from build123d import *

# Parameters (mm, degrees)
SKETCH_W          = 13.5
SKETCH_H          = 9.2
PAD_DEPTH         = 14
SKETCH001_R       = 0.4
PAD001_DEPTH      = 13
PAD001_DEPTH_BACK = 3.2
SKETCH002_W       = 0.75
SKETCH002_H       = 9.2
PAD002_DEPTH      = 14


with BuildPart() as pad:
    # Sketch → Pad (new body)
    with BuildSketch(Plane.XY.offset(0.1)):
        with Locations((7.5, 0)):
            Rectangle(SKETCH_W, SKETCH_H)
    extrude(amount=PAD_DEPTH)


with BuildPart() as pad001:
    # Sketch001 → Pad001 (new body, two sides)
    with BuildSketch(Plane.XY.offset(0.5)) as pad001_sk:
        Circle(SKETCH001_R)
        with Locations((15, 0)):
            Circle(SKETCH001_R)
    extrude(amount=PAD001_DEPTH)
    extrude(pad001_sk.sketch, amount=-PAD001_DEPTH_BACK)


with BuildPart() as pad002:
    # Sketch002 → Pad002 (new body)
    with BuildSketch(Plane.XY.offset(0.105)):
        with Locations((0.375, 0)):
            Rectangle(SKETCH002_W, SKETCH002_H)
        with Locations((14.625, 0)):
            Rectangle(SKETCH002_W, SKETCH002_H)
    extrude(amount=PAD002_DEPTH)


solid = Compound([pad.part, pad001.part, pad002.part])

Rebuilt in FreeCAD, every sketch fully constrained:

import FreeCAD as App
import Part
import Sketcher
from FreeCAD import Vector
Q = App.Units.Quantity

doc = App.newDocument("Part")
body = doc.addObject("PartDesign::Body", "Body")

# Sketch on XY plane
sketch1 = doc.addObject("Sketcher::SketchObject", "Sketch")
body.addObject(sketch1)
sketch1.AttachmentSupport = (doc.XY_Plane, [""])
sketch1.MapMode = "FlatFace"
sketch1.AttachmentOffset = App.Placement(Vector(0, 0, 0.1), App.Rotation())
sketch1.addGeometry([
    Part.LineSegment(Vector(1, 5, 0), Vector(1, -5, 0)),
    Part.LineSegment(Vector(1, -5, 0), Vector(14, -5, 0)),
    Part.LineSegment(Vector(14, -5, 0), Vector(14, 5, 0)),
    Part.LineSegment(Vector(14, 5, 0), Vector(1, 5, 0)),
], False)
sketch1.addConstraint([
    Sketcher.Constraint("Coincident", 0, 2, 1, 1),
    Sketcher.Constraint("Coincident", 1, 2, 2, 1),
    Sketcher.Constraint("Coincident", 2, 2, 3, 1),
    Sketcher.Constraint("Coincident", 3, 2, 0, 1),
    Sketcher.Constraint("Vertical", 0),
    Sketcher.Constraint("Horizontal", 1),
    Sketcher.Constraint("Vertical", 2),
    Sketcher.Constraint("Horizontal", 3),
    Sketcher.Constraint("DistanceX", 1, 1, 1, 2, Q("13.5 mm")),
    Sketcher.Constraint("DistanceY", 0, 2, 0, 1, Q("9.2 mm")),
    Sketcher.Constraint("DistanceY", 0, 2, -1, 1, Q("4.6 mm")),
    Sketcher.Constraint("DistanceX", -1, 1, 0, 2, Q("0.75 mm")),
])
pad1 = doc.addObject("PartDesign::Pad", "Pad")
body.addObject(pad1)
pad1.Profile = sketch1
pad1.Length = 14
body2 = doc.addObject("PartDesign::Body", "Body001")
body2.AllowCompound = True

# Sketch on XY plane
sketch2 = doc.addObject("Sketcher::SketchObject", "Sketch001")
body2.addObject(sketch2)
sketch2.AttachmentSupport = (doc.getObject("XY_Plane001"), [""])
sketch2.MapMode = "FlatFace"
sketch2.AttachmentOffset = App.Placement(Vector(0, 0, 0.5), App.Rotation())
sketch2.addGeometry([
    Part.Circle(Vector(0, 0, 0), Vector(0, 0, 1), 0.4),
    Part.Circle(Vector(15, 0, 0), Vector(0, 0, 1), 0.4),
], False)
sketch2.addConstraint([
    Sketcher.Constraint("Coincident", 0, 3, -1, 1),
    Sketcher.Constraint("Equal", 0, 1),
    Sketcher.Constraint("PointOnObject", 1, 3, -1),
    Sketcher.Constraint("Diameter", 0, Q("0.8 mm")),
    Sketcher.Constraint("DistanceX", -1, 1, 1, 3, Q("15 mm")),
])
pad2 = doc.addObject("PartDesign::Pad", "Pad001")
body2.addObject(pad2)
pad2.Profile = sketch2
pad2.Type = "TwoLengths"
pad2.Length = 13
pad2.Length2 = 3.2
body3 = doc.addObject("PartDesign::Body", "Body002")
body3.AllowCompound = True

# Sketch on XY plane
sketch3 = doc.addObject("Sketcher::SketchObject", "Sketch002")
body3.addObject(sketch3)
sketch3.AttachmentSupport = (doc.getObject("XY_Plane002"), [""])
sketch3.MapMode = "FlatFace"
sketch3.AttachmentOffset = App.Placement(Vector(0, 0, 0.105), App.Rotation())
sketch3.addGeometry([
    Part.LineSegment(Vector(0, 4.6, 0), Vector(0, -4.6, 0)),  # 0
    Part.LineSegment(Vector(0, -4.6, 0), Vector(0.8, -4.6, 0)),  # 1
    Part.LineSegment(Vector(0.8, -4.6, 0), Vector(0.8, 4.6, 0)),  # 2
    Part.LineSegment(Vector(0.8, 4.6, 0), Vector(0, 4.6, 0)),  # 3
    Part.LineSegment(Vector(14.2, 4.6, 0), Vector(14.2, -4.6, 0)),  # 4
    Part.LineSegment(Vector(14.2, -4.6, 0), Vector(15, -4.6, 0)),  # 5
    Part.LineSegment(Vector(15, -4.6, 0), Vector(15, 4.6, 0)),  # 6
    Part.LineSegment(Vector(15, 4.6, 0), Vector(14.2, 4.6, 0)),  # 7
], False)
sketch3.addConstraint([
    Sketcher.Constraint("Coincident", 0, 2, 1, 1),
    Sketcher.Constraint("Coincident", 1, 2, 2, 1),
    Sketcher.Constraint("Coincident", 2, 2, 3, 1),
    Sketcher.Constraint("Coincident", 3, 2, 0, 1),
    Sketcher.Constraint("Coincident", 4, 2, 5, 1),
    Sketcher.Constraint("Coincident", 5, 2, 6, 1),
    Sketcher.Constraint("Coincident", 6, 2, 7, 1),
    Sketcher.Constraint("Coincident", 7, 2, 4, 1),
    Sketcher.Constraint("Vertical", 0),
    Sketcher.Constraint("Horizontal", 1),
    Sketcher.Constraint("Vertical", 2),
    Sketcher.Constraint("Horizontal", 3),
    Sketcher.Constraint("Vertical", 4),
    Sketcher.Constraint("Horizontal", 5),
    Sketcher.Constraint("Vertical", 6),
    Sketcher.Constraint("Horizontal", 7),
    Sketcher.Constraint("Symmetric", 0, 2, 3, 2, -1, 1),
    Sketcher.Constraint("Horizontal", 1, 2, 4, 2),
    Sketcher.Constraint("Horizontal", 3, 2, 6, 2),
    Sketcher.Constraint("Equal", 3, 5),
    Sketcher.Constraint("DistanceY", 0, 2, 0, 1, Q("9.2 mm")),
    Sketcher.Constraint("DistanceX", -1, 1, 5, 2, Q("15 mm")),
    Sketcher.Constraint("DistanceX", 1, 1, 1, 2, Q("0.75 mm")),
])
pad3 = doc.addObject("PartDesign::Pad", "Pad002")
body3.addObject(pad3)
pad3.Profile = sketch3
pad3.Length = 14

doc.recompute()
